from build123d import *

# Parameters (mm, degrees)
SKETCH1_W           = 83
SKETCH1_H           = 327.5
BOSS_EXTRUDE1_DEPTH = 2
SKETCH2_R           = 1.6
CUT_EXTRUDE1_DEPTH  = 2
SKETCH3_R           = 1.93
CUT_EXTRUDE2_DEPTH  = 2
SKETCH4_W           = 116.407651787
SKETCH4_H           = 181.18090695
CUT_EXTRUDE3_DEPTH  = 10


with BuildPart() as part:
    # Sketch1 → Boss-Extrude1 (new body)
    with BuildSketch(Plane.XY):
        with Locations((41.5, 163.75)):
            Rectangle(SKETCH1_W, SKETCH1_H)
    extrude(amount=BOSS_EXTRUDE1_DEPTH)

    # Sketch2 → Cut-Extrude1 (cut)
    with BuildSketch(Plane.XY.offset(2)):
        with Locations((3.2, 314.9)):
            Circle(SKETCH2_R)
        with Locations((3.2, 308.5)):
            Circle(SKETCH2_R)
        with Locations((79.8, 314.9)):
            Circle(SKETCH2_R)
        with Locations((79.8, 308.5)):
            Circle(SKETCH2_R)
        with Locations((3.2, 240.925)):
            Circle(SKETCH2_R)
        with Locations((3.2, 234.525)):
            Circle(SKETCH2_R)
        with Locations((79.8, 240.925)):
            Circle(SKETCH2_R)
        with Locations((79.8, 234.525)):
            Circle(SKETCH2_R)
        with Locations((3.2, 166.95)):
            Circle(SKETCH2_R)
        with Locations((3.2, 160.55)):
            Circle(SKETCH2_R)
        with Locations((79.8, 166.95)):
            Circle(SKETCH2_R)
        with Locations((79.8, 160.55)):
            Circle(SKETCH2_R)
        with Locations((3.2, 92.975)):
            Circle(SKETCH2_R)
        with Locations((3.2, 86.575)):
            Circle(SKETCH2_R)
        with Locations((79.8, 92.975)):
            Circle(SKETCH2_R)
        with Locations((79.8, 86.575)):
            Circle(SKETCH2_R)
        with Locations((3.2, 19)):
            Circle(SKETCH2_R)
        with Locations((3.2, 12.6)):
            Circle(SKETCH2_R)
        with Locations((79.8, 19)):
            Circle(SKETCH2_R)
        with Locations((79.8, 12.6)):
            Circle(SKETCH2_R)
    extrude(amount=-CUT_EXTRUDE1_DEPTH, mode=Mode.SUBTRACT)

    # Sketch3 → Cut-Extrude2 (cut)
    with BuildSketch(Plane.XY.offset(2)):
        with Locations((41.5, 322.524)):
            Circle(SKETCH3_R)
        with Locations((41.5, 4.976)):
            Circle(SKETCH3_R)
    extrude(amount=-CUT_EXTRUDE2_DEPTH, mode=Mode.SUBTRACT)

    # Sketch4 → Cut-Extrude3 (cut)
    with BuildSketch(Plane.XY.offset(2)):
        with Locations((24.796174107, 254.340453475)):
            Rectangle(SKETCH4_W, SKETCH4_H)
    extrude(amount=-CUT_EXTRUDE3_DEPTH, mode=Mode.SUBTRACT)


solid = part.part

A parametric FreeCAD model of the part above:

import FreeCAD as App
import Part
import Sketcher
from FreeCAD import Vector

doc = App.newDocument("Part")
params = doc.addObject("Spreadsheet::Sheet", "Params")
for row, (alias, value) in enumerate([
    ("sketch1_width", "83 mm"),
    ("sketch1_height", "327.5 mm"),
    ("pad1_length", "2 mm"),
    ("sketch2_diameter", "3.2 mm"),
    ("pocket1_length", "2 mm"),
    ("sketch3_diameter", "3.86 mm"),
    ("pocket2_length", "2 mm"),
    ("pocket3_length", "10 mm"),
], start=1):
    params.set(f"A{row}", alias)
    params.set(f"B{row}", "=" + value)
    params.setAlias(f"B{row}", alias)

body = doc.addObject("PartDesign::Body", "Body")

sketch1 = body.newObject("Sketcher::SketchObject", "Sketch")
sketch1.AttachmentSupport = (doc.getObject("XY_Plane"), [""])
sketch1.MapMode = "FlatFace"
sketch1.addGeometry([
    Part.LineSegment(Vector(0, 327.5, 0), Vector(0, 0, 0)),
    Part.LineSegment(Vector(0, 0, 0), Vector(83, 0, 0)),
    Part.LineSegment(Vector(83, 0, 0), Vector(83, 327.5, 0)),
    Part.LineSegment(Vector(83, 327.5, 0), Vector(0, 327.5, 0)),
], False)
sketch1.addConstraint([
    Sketcher.Constraint("Coincident", 0, 2, 1, 1),
    Sketcher.Constraint("Coincident", 1, 2, 2, 1),
    Sketcher.Constraint("Coincident", 2, 2, 3, 1),
    Sketcher.Constraint("Coincident", 3, 2, 0, 1),
    Sketcher.Constraint("Vertical", 0),
    Sketcher.Constraint("Horizontal", 1),
    Sketcher.Constraint("Vertical", 2),
    Sketcher.Constraint("Horizontal", 3),
    Sketcher.Constraint("Coincident", 0, 2, -1, 1),
    Sketcher.Constraint("DistanceX", 1, 1, 1, 2, 83.0),
    Sketcher.Constraint("DistanceY", 0, 2, 0, 1, 327.5),
])
sketch1.setExpression("Constraints[9]", "Params.sketch1_width")
sketch1.setExpression("Constraints[10]", "Params.sketch1_height")
pad1 = body.newObject("PartDesign::Pad", "Pad")
pad1.Profile = sketch1
pad1.setExpression("Length", "Params.pad1_length")

sketch2 = body.newObject("Sketcher::SketchObject", "Sketch001")
sketch2.AttachmentSupport = (doc.getObject("XY_Plane"), [""])
sketch2.MapMode = "FlatFace"
sketch2.AttachmentOffset = App.Placement(Vector(0, 0, 2), App.Rotation())
sketch2.addGeometry([
    Part.Circle(Vector(3.2, 314.9, 0), Vector(0, 0, 1), 1.6),
    Part.Circle(Vector(3.2, 308.5, 0), Vector(0, 0, 1), 1.6),
    Part.Circle(Vector(79.8, 314.9, 0), Vector(0, 0, 1), 1.6),
    Part.Circle(Vector(79.8, 308.5, 0), Vector(0, 0, 1), 1.6),
    Part.Circle(Vector(3.2, 240.925, 0), Vector(0, 0, 1), 1.6),
    Part.Circle(Vector(3.2, 234.525, 0), Vector(0, 0, 1), 1.6),
    Part.Circle(Vector(79.8, 240.925, 0), Vector(0, 0, 1), 1.6),
    Part.Circle(Vector(79.8, 234.525, 0), Vector(0, 0, 1), 1.6),
    Part.Circle(Vector(3.2, 166.95, 0), Vector(0, 0, 1), 1.6),
    Part.Circle(Vector(3.2, 160.55, 0), Vector(0, 0, 1), 1.6),
    Part.Circle(Vector(79.8, 166.95, 0), Vector(0, 0, 1), 1.6),
    Part.Circle(Vector(79.8, 160.55, 0), Vector(0, 0, 1), 1.6),
    Part.Circle(Vector(3.2, 92.975, 0), Vector(0, 0, 1), 1.6),
    Part.Circle(Vector(3.2, 86.575, 0), Vector(0, 0, 1), 1.6),
    Part.Circle(Vector(79.8, 92.975, 0), Vector(0, 0, 1), 1.6),
    Part.Circle(Vector(79.8, 86.575, 0), Vector(0, 0, 1), 1.6),
    Part.Circle(Vector(3.2, 19, 0), Vector(0, 0, 1), 1.6),
    Part.Circle(Vector(3.2, 12.6, 0), Vector(0, 0, 1), 1.6),
    Part.Circle(Vector(79.8, 19, 0), Vector(0, 0, 1), 1.6),
    Part.Circle(Vector(79.8, 12.6, 0), Vector(0, 0, 1), 1.6),
], False)
sketch2.addConstraint([
    Sketcher.Constraint("Equal", 0, 1),
    Sketcher.Constraint("Equal", 1, 2),
    Sketcher.Constraint("Equal", 2, 3),
    Sketcher.Constraint("Equal", 3, 4),
    Sketcher.Constraint("Equal", 4, 5),
    Sketcher.Constraint("Equal", 5, 6),
    Sketcher.Constraint("Equal", 6, 7),
    Sketcher.Constraint("Equal", 7, 8),
    Sketcher.Constraint("Equal", 8, 9),
    Sketcher.Constraint("Equal", 9, 10),
    Sketcher.Constraint("Equal", 10, 11),
    Sketcher.Constraint("Equal", 11, 12),
    Sketcher.Constraint("Equal", 12, 13),
    Sketcher.Constraint("Equal", 13, 14),
    Sketcher.Constraint("Equal", 14, 15),
    Sketcher.Constraint("Equal", 15, 16),
    Sketcher.Constraint("Equal", 16, 17),
    Sketcher.Constraint("Equal", 17, 18),
    Sketcher.Constraint("Equal", 18, 19),
    Sketcher.Constraint("Horizontal", 0, 3, 2, 3),
    Sketcher.Constraint("Horizontal", 1, 3, 3, 3),
    Sketcher.Constraint("Horizontal", 4, 3, 6, 3),
    Sketcher.Constraint("Horizontal", 5, 3, 7, 3),
    Sketcher.Constraint("Horizontal", 8, 3, 10, 3),
    Sketcher.Constraint("Horizontal", 9, 3, 11, 3),
    Sketcher.Constraint("Horizontal", 12, 3, 14, 3),
    Sketcher.Constraint("Horizontal", 13, 3, 15, 3),
    Sketcher.Constraint("Horizontal", 16, 3, 18, 3),
    Sketcher.Constraint("Horizontal", 17, 3, 19, 3),
    Sketcher.Constraint("Vertical", 0, 3, 1, 3),
    Sketcher.Constraint("Vertical", 2, 3, 3, 3),
    Sketcher.Constraint("Vertical", 1, 3, 4, 3),
    Sketcher.Constraint("Vertical", 4, 3, 5, 3),
    Sketcher.Constraint("Vertical", 3, 3, 6, 3),
    Sketcher.Constraint("Vertical", 6, 3, 7, 3),
    Sketcher.Constraint("Vertical", 5, 3, 8, 3),
    Sketcher.Constraint("Vertical", 8, 3, 9, 3),
    Sketcher.Constraint("Vertical", 7, 3, 10, 3),
    Sketcher.Constraint("Vertical", 10, 3, 11, 3),
    Sketcher.Constraint("Vertical", 9, 3, 12, 3),
    Sketcher.Constraint("Vertical", 12, 3, 13, 3),
    Sketcher.Constraint("Vertical", 11, 3, 14, 3),
    Sketcher.Constraint("Vertical", 14, 3, 15, 3),
    Sketcher.Constraint("Vertical", 13, 3, 16, 3),
    Sketcher.Constraint("Vertical", 16, 3, 17, 3),
    Sketcher.Constraint("Vertical", 15, 3, 18, 3),
    Sketcher.Constraint("Vertical", 18, 3, 19, 3),
    Sketcher.Constraint("Diameter", 0, 3.2),
    Sketcher.Constraint("DistanceY", -1, 1, 16, 3, 19.0),
    Sketcher.Constraint("DistanceX", -1, 1, 0, 3, 3.2),
    Sketcher.Constraint("DistanceY", -1, 1, 0, 3, 314.9),
    Sketcher.Constraint("DistanceY", -1, 1, 1, 3, 308.5),
    Sketcher.Constraint("DistanceX", -1, 1, 2, 3, 79.8),
    Sketcher.Constraint("DistanceY", -1, 1, 17, 3, 12.6),
    Sketcher.Constraint("DistanceY", 5, 3, 4, 3, 6.4),
    Sketcher.Constraint("DistanceY", 9, 3, 8, 3, 6.4),
    Sketcher.Constraint("DistanceY", 13, 3, 12, 3, 6.4),
    Sketcher.Constraint("DistanceY", -1, 1, 8, 3, 166.95),
    Sketcher.Constraint("DistanceY", 12, 3, 5, 3, 141.55),
    Sketcher.Constraint("DistanceY", -1, 1, 4, 3, 240.925),
])
sketch2.setExpression("Constraints[47]", "Params.sketch2_diameter")
pocket1 = body.newObject("PartDesign::Pocket", "Pocket")
pocket1.Profile = sketch2
pocket1.setExpression("Length", "Params.pocket1_length")

sketch3 = body.newObject("Sketcher::SketchObject", "Sketch002")
sketch3.AttachmentSupport = (doc.getObject("XY_Plane"), [""])
sketch3.MapMode = "FlatFace"
sketch3.AttachmentOffset = App.Placement(Vector(0, 0, 2), App.Rotation())
sketch3.addGeometry([
    Part.Circle(Vector(41.5, 322.524, 0), Vector(0, 0, 1), 1.93),
    Part.Circle(Vector(41.5, 4.976, 0), Vector(0, 0, 1), 1.93),
], False)
sketch3.addConstraint([
    Sketcher.Constraint("Equal", 0, 1),
    Sketcher.Constraint("Vertical", 0, 3, 1, 3),
    Sketcher.Constraint("Diameter", 0, 3.86),
    Sketcher.Constraint("DistanceX", -1, 1, 0, 3, 41.5),
    Sketcher.Constraint("DistanceY", -1, 1, 0, 3, 322.524),
    Sketcher.Constraint("DistanceY", -1, 1, 1, 3, 4.976),
])
sketch3.setExpression("Constraints[2]", "Params.sketch3_diameter")
pocket2 = body.newObject("PartDesign::Pocket", "Pocket001")
pocket2.Profile = sketch3
pocket2.setExpression("Length", "Params.pocket2_length")

sketch4 = body.newObject("Sketcher::SketchObject", "Sketch003")
sketch4.AttachmentSupport = (doc.getObject("XY_Plane"), [""])
sketch4.MapMode = "FlatFace"
sketch4.AttachmentOffset = App.Placement(Vector(0, 0, 2), App.Rotation())
sketch4.addGeometry([
    Part.LineSegment(Vector(-33.407652, 344.930907, 0), Vector(-33.407652, 163.75, 0)),
    Part.LineSegment(Vector(-33.407652, 163.75, 0), Vector(83, 163.75, 0)),
    Part.LineSegment(Vector(83, 163.75, 0), Vector(83, 344.930907, 0)),
    Part.LineSegment(Vector(83, 344.930907, 0), Vector(-33.407652, 344.930907, 0)),
], False)
sketch4.addConstraint([
    Sketcher.Constraint("Coincident", 0, 2, 1, 1),
    Sketcher.Constraint("Coincident", 1, 2, 2, 1),
    Sketcher.Constraint("Coincident", 2, 2, 3, 1),
    Sketcher.Constraint("Coincident", 3, 2, 0, 1),
    Sketcher.Constraint("Vertical", 0),
    Sketcher.Constraint("Horizontal", 1),
    Sketcher.Constraint("Vertical", 2),
    Sketcher.Constraint("Horizontal", 3),
    Sketcher.Constraint("DistanceX", -1, 1, 1, 2, 83.0),
    Sketcher.Constraint("DistanceY", -1, 1, 0, 2, 163.75),
    Sketcher.Constraint("DistanceX", 1, 1, 1, 2, 116.407652),
    Sketcher.Constraint("DistanceY", 0, 2, 0, 1, 181.180907),
])
pocket3 = body.newObject("PartDesign::Pocket", "Pocket002")
pocket3.Profile = sketch4
pocket3.setExpression("Length", "Params.pocket3_length")

doc.recompute()
